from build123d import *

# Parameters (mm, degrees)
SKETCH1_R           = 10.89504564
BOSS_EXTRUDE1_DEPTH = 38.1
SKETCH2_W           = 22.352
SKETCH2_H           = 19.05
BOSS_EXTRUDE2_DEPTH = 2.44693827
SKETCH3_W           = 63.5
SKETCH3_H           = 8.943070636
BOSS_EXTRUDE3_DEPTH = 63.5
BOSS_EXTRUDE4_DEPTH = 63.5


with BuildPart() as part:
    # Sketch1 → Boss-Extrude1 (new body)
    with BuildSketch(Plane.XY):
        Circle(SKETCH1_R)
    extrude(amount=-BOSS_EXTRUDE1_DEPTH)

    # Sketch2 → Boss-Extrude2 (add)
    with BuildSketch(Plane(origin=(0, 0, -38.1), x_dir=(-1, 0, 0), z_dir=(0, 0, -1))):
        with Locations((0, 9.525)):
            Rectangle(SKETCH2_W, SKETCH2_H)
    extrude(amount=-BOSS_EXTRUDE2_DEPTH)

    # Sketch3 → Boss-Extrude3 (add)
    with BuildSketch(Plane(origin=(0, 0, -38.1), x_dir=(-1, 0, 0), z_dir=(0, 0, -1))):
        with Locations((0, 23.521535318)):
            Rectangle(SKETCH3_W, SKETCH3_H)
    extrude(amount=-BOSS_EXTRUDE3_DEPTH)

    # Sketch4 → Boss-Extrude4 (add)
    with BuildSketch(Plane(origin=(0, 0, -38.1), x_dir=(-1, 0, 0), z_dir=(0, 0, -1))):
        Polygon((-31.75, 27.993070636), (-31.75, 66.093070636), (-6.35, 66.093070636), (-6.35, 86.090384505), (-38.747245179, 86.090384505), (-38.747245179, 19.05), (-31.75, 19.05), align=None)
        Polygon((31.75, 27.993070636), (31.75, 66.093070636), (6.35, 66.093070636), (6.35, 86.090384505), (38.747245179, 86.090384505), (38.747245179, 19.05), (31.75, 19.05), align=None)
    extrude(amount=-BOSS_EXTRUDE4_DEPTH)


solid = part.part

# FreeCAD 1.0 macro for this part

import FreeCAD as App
import Part
import Sketcher
Q = App.Units.Quantity


def add_polygon(sketch, points):
    """Adds a closed chain of lines whose ends are joined by coincident constraints."""
    first, n = sketch.GeometryCount, len(points)
    for a, b in zip(points, points[1:] + points[:1]):
        sketch.addGeometry(Part.LineSegment(App.Vector(*a, 0), App.Vector(*b, 0)), False)
    for i in range(n):
        sketch.addConstraint(Sketcher.Constraint("Coincident", first + i, 2, first + (i + 1) % n, 1))

doc = App.newDocument("Part")
params = doc.addObject("Spreadsheet::Sheet", "Params")
for row, (alias, value) in enumerate([
    ("pad1_length", "1.5 in"),
    ("sketch2_width", "0.88 in"),
    ("sketch2_height", "0.75 in"),
    ("pad2_length", "2.446938 mm"),
    ("sketch3_width", "2.5 in"),
    ("pad3_length", "2.5 in"),
    ("sketch4_width", "1 in"),
    ("pad4_length", "2.5 in"),
], start=1):
    params.set(f"A{row}", alias)
    params.set(f"B{row}", "=" + value)
    params.setAlias(f"B{row}", alias)

body = doc.addObject("PartDesign::Body", "Body")

sketch1 = body.newObject("Sketcher::SketchObject", "Sketch")
sketch1.AttachmentSupport = (doc.getObject("XY_Plane"), [""])
sketch1.MapMode = "FlatFace"
sketch1.addGeometry(Part.Circle(App.Vector(0, 0, 0), App.Vector(0, 0, 1), 11), False)
sketch1.addConstraint([
    Sketcher.Constraint("Coincident", 0, 3, -1, 1),
    Sketcher.Constraint("Diameter", 0, Q("21.790091 mm")),
])
pad1 = body.newObject("PartDesign::Pad", "Pad")
pad1.Profile = sketch1
pad1.setExpression("Length", "Params.pad1_length")
pad1.Reversed = True

sketch2 = body.newObject("Sketcher::SketchObject", "Sketch001")
sketch2.AttachmentSupport = (doc.getObject("XY_Plane"), [""])
sketch2.MapMode = "FlatFace"
sketch2.AttachmentOffset = App.Placement(App.Vector(0, 0, -1.5 * 25.4), App.Rotation())
add_polygon(sketch2, [(11, 19), (11, 0), (-11, 0), (-11, 19)])
sketch2.addConstraint([
    Sketcher.Constraint("Vertical", 0),
    Sketcher.Constraint("Horizontal", 1),
    Sketcher.Constraint("Vertical", 2),
    Sketcher.Constraint("Horizontal", 3),
    Sketcher.Constraint("Symmetric", 0, 2, 1, 2, -1, 1),
    Sketcher.Constraint("DistanceX", 1, 2, 1, 1, Q("0.88 in")),
    Sketcher.Constraint("DistanceY", 0, 2, 0, 1, Q("0.75 in")),
])
sketch2.setExpression("Constraints[9]", "Params.sketch2_width")
sketch2.setExpression("Constraints[10]", "Params.sketch2_height")
pad2 = body.newObject("PartDesign::Pad", "Pad001")
pad2.Profile = sketch2
pad2.setExpression("Length", "Params.pad2_length")

sketch3 = body.newObject("Sketcher::SketchObject", "Sketch002")
sketch3.AttachmentSupport = (doc.getObject("XY_Plane"), [""])
sketch3.MapMode = "FlatFace"
sketch3.AttachmentOffset = App.Placement(App.Vector(0, 0, -1.5 * 25.4), App.Rotation())
add_polygon(sketch3, [(32, 28), (32, 19), (-32, 19), (-32, 28)])
sketch3.addConstraint([
    Sketcher.Constraint("Vertical", 0),
    Sketcher.Constraint("Horizontal", 1),
    Sketcher.Constraint("Vertical", 2),
    Sketcher.Constraint("Horizontal", 3),
    Sketcher.Constraint("DistanceX", 1, 2, 1, 1, Q("2.5 in")),
    Sketcher.Constraint("DistanceX", -1, 1, 0, 2, Q("1.25 in")),
    Sketcher.Constraint("DistanceY", -1, 1, 0, 2, Q("0.75 in")),
    Sketcher.Constraint("DistanceY", 0, 2, 0, 1, Q("8.943071 mm")),
])
sketch3.setExpression("Constraints[8]", "Params.sketch3_width")
pad3 = body.newObject("PartDesign::Pad", "Pad002")
pad3.Profile = sketch3
pad3.setExpression("Length", "Params.pad3_length")

sketch4 = body.newObject("Sketcher::SketchObject", "Sketch003")
sketch4.AttachmentSupport = (doc.getObject("XY_Plane"), [""])
sketch4.MapMode = "FlatFace"
sketch4.AttachmentOffset = App.Placement(App.Vector(0, 0, -1.5 * 25.4), App.Rotation())
add_polygon(sketch4, [(32, 66), (6, 66), (6, 86), (39, 86), (39, 19), (32, 19)])
add_polygon(sketch4, [(-32, 66), (-32, 19), (-39, 19), (-39, 86), (-6, 86), (-6, 66)])
sketch4.addConstraint([
    Sketcher.Constraint("Horizontal", 0),
    Sketcher.Constraint("Vertical", 1),
    Sketcher.Constraint("Horizontal", 2),
    Sketcher.Constraint("Vertical", 3),
    Sketcher.Constraint("Horizontal", 4),
    Sketcher.Constraint("Vertical", 5),
    Sketcher.Constraint("Vertical", 6),
    Sketcher.Constraint("Horizontal", 7),
    Sketcher.Constraint("Vertical", 8),
    Sketcher.Constraint("Horizontal", 9),
    Sketcher.Constraint("Vertical", 10),
    Sketcher.Constraint("Horizontal", 11),
    Sketcher.Constraint("Symmetric", 4, 2, 6, 2, -2),
    Sketcher.Constraint("Symmetric", 2, 2, 8, 2, -2),
    Sketcher.Constraint("Symmetric", 0, 2, 10, 2, -2),
    Sketcher.Constraint("DistanceX", 0, 2, 0, 1, Q("1 in")),
    Sketcher.Constraint("DistanceX", 6, 2, 0, 2, Q("1.5 in")),
    Sketcher.Constraint("DistanceY", -1, 1, 3, 2, Q("0.75 in")),
    Sketcher.Constraint("DistanceY", 5, 1, 5, 2, Q("47.043071 mm")),
    Sketcher.Constraint("DistanceX", 2, 1, 2, 2, Q("32.397245 mm")),
    Sketcher.Constraint("DistanceY", 1, 1, 1, 2, Q("19.997314 mm")),
])
sketch4.setExpression("Constraints[27]", "Params.sketch4_width")
pad4 = body.newObject("PartDesign::Pad", "Pad003")
pad4.Profile = sketch4
pad4.setExpression("Length", "Params.pad4_length")

doc.recompute()
